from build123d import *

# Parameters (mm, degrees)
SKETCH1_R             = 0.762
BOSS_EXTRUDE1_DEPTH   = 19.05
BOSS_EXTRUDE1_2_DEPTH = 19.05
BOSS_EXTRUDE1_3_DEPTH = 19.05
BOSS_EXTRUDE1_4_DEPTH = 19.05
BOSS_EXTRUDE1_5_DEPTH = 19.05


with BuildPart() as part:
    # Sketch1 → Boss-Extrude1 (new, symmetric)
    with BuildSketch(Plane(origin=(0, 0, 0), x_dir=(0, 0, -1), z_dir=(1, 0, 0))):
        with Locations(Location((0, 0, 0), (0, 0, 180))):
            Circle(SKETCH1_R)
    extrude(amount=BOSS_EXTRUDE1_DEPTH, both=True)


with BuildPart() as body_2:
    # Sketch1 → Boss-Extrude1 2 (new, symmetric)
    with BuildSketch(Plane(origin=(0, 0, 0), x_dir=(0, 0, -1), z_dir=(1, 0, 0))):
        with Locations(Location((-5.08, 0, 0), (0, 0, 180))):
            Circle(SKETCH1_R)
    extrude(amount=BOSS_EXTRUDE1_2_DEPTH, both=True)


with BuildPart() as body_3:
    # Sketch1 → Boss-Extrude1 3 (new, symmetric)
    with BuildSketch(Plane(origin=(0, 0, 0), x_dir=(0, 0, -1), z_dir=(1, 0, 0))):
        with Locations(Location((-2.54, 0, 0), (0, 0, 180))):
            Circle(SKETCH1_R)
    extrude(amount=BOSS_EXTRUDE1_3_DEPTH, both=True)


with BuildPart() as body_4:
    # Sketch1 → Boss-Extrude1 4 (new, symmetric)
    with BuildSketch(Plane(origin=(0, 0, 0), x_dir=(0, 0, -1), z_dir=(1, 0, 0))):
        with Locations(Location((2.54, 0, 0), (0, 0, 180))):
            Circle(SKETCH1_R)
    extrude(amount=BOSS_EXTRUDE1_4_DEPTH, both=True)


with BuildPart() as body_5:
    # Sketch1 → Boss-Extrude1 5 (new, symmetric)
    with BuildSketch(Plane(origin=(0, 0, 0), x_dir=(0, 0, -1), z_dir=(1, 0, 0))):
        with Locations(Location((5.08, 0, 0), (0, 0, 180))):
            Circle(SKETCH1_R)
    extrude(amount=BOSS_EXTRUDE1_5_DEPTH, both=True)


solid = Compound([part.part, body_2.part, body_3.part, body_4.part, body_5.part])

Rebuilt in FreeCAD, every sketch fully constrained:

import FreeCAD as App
import Part
import Sketcher

V = App.Vector
Q = App.Units.Quantity

doc = App.newDocument("Part")
body = doc.addObject("PartDesign::Body", "Body")

# Sketch on YZ plane
sketch1 = body.newObject("Sketcher::SketchObject", "Sketch")
sketch1.AttachmentSupport = (doc.getObject("YZ_Plane"), [""])
sketch1.MapMode = "FlatFace"
sketch1.addGeometry(Part.Circle(V(0, 0, 0), V(0, 0, 1), 0.8), False)
sketch1.addConstraint([
    Sketcher.Constraint("Coincident", 0, 3, -1, 1),
    Sketcher.Constraint("Diameter", 0, Q("0.06 in")),
])
pad1 = body.newObject("PartDesign::Pad", "Pad")
pad1.Profile = sketch1
pad1.Length = Q("1.5 in")
pad1.Midplane = True
body2 = doc.addObject("PartDesign::Body", "Body001")

# Sketch on YZ plane
sketch2 = body2.newObject("Sketcher::SketchObject", "Sketch001")
sketch2.AttachmentSupport = (doc.getObject("YZ_Plane001"), [""])
sketch2.MapMode = "FlatFace"
sketch2.addGeometry(Part.Circle(V(0, 5.1, 0), V(0, 0, 1), 0.8), False)
sketch2.addConstraint([
    Sketcher.Constraint("PointOnObject", 0, 3, -2),
    Sketcher.Constraint("Diameter", 0, Q("0.06 in")),
    Sketcher.Constraint("DistanceY", -1, 1, 0, 3, Q("0.2 in")),
])
pad2 = body2.newObject("PartDesign::Pad", "Pad001")
pad2.Profile = sketch2
pad2.Length = Q("1.5 in")
pad2.Midplane = True
body3 = doc.addObject("PartDesign::Body", "Body002")

# Sketch on YZ plane
sketch3 = body3.newObject("Sketcher::SketchObject", "Sketch002")
sketch3.AttachmentSupport = (doc.getObject("YZ_Plane002"), [""])
sketch3.MapMode = "FlatFace"
sketch3.addGeometry(Part.Circle(V(0, 2.5, 0), V(0, 0, 1), 0.8), False)
sketch3.addConstraint([
    Sketcher.Constraint("PointOnObject", 0, 3, -2),
    Sketcher.Constraint("Diameter", 0, Q("0.06 in")),
    Sketcher.Constraint("DistanceY", -1, 1, 0, 3, Q("0.1 in")),
])
pad3 = body3.newObject("PartDesign::Pad", "Pad002")
pad3.Profile = sketch3
pad3.Length = Q("1.5 in")
pad3.Midplane = True
body4 = doc.addObject("PartDesign::Body", "Body003")

# Sketch on YZ plane
sketch4 = body4.newObject("Sketcher::SketchObject", "Sketch003")
sketch4.AttachmentSupport = (doc.getObject("YZ_Plane003"), [""])
sketch4.MapMode = "FlatFace"
sketch4.addGeometry(Part.Circle(V(0, -2.5, 0), V(0, 0, 1), 0.8), False)
sketch4.addConstraint([
    Sketcher.Constraint("PointOnObject", 0, 3, -2),
    Sketcher.Constraint("Diameter", 0, Q("0.06 in")),
    Sketcher.Constraint("DistanceY", 0, 3, -1, 1, Q("0.1 in")),
])
pad4 = body4.newObject("PartDesign::Pad", "Pad003")
pad4.Profile = sketch4
pad4.Length = Q("1.5 in")
pad4.Midplane = True
body5 = doc.addObject("PartDesign::Body", "Body004")

# Sketch on YZ plane
sketch5 = body5.newObject("Sketcher::SketchObject", "Sketch004")
sketch5.AttachmentSupport = (doc.getObject("YZ_Plane004"), [""])
sketch5.MapMode = "FlatFace"
sketch5.addGeometry(Part.Circle(V(0, -5.1, 0), V(0, 0, 1), 0.8), False)
sketch5.addConstraint([
    Sketcher.Constraint("PointOnObject", 0, 3, -2),
    Sketcher.Constraint("Diameter", 0, Q("0.06 in")),
    Sketcher.Constraint("DistanceY", 0, 3, -1, 1, Q("0.2 in")),
])
pad5 = body5.newObject("PartDesign::Pad", "Pad004")
pad5.Profile = sketch5
pad5.Length = Q("1.5 in")
pad5.Midplane = True

doc.recompute()
